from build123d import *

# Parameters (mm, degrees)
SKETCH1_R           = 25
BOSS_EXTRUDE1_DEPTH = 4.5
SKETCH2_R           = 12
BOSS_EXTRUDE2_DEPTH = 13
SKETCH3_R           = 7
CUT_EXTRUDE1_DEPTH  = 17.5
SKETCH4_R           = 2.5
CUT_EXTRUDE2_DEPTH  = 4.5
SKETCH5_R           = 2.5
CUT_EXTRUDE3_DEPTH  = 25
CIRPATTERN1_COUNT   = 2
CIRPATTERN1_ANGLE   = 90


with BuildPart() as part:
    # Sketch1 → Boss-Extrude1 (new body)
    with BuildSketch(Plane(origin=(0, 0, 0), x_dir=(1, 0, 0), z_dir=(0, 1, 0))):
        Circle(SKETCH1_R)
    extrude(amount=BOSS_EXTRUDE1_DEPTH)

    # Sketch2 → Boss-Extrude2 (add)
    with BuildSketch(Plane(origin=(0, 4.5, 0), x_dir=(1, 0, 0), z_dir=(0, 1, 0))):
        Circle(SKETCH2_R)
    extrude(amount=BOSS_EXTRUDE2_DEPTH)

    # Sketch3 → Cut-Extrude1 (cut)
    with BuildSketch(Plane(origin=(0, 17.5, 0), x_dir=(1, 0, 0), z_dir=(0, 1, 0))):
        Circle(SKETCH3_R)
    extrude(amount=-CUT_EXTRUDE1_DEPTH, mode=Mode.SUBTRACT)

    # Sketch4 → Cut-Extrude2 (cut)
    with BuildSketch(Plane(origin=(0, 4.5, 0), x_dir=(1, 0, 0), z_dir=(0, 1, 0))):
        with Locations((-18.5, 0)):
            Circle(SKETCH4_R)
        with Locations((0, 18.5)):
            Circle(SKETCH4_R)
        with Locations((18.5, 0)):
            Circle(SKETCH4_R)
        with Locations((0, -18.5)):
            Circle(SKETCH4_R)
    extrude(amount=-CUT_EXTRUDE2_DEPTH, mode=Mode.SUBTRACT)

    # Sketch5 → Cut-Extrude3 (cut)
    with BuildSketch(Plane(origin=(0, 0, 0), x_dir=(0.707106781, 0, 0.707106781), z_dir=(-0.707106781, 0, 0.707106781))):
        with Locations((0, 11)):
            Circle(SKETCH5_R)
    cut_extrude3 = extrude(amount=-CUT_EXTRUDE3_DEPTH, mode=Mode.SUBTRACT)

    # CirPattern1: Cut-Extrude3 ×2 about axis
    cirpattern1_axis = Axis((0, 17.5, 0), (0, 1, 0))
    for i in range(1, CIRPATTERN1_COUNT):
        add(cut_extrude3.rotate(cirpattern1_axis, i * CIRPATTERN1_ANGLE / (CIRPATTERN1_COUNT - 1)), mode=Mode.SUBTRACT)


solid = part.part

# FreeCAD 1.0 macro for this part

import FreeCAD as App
import Part
import Sketcher

V = App.Vector
Q = App.Units.Quantity

doc = App.newDocument("Part")
body = doc.addObject("PartDesign::Body", "Body")

# Sketch on XZ plane
sketch1 = doc.addObject("Sketcher::SketchObject", "Sketch")
body.addObject(sketch1)
sketch1.AttachmentSupport = (doc.XZ_Plane, [""])
sketch1.MapMode = "FlatFace"
sketch1.addGeometry(Part.Circle(V(0, 0, 0), V(0, 0, 1), 25), False)
sketch1.addConstraint([
    Sketcher.Constraint("Coincident", 0, 3, -1, 1),
    Sketcher.Constraint("Diameter", 0, Q("50 mm")),
])
pad1 = doc.addObject("PartDesign::Pad", "Pad")
body.addObject(pad1)
pad1.Profile = sketch1
pad1.Length = 4.5
pad1.Reversed = True

# Sketch on XZ plane
sketch2 = doc.addObject("Sketcher::SketchObject", "Sketch001")
body.addObject(sketch2)
sketch2.AttachmentSupport = (doc.XZ_Plane, [""])
sketch2.MapMode = "FlatFace"
sketch2.AttachmentOffset = App.Placement(V(0, 0, -4.5), App.Rotation())
sketch2.addGeometry(Part.Circle(V(0, 0, 0), V(0, 0, 1), 12), False)
sketch2.addConstraint([
    Sketcher.Constraint("Coincident", 0, 3, -1, 1),
    Sketcher.Constraint("Diameter", 0, Q("24 mm")),
])
pad2 = doc.addObject("PartDesign::Pad", "Pad001")
body.addObject(pad2)
pad2.Profile = sketch2
pad2.Length = 13
pad2.Reversed = True

# Sketch on XZ plane
sketch3 = doc.addObject("Sketcher::SketchObject", "Sketch002")
body.addObject(sketch3)
sketch3.AttachmentSupport = (doc.XZ_Plane, [""])
sketch3.MapMode = "FlatFace"
sketch3.AttachmentOffset = App.Placement(V(0, 0, -17.5), App.Rotation())
sketch3.addGeometry(Part.Circle(V(0, 0, 0), V(0, 0, 1), 7), False)
sketch3.addConstraint([
    Sketcher.Constraint("Coincident", 0, 3, -1, 1),
    Sketcher.Constraint("Diameter", 0, Q("14 mm")),
])
pocket1 = doc.addObject("PartDesign::Pocket", "Pocket")
body.addObject(pocket1)
pocket1.Profile = sketch3
pocket1.Length = 17.5
pocket1.Reversed = True

# Sketch on XZ plane
sketch4 = doc.addObject("Sketcher::SketchObject", "Sketch003")
body.addObject(sketch4)
sketch4.AttachmentSupport = (doc.XZ_Plane, [""])
sketch4.MapMode = "FlatFace"
sketch4.AttachmentOffset = App.Placement(V(0, 0, -4.5), App.Rotation())
sketch4.addGeometry([
    Part.Circle(V(-18.5, 0, 0), V(0, 0, 1), 2.5),
    Part.Circle(V(0, -18.5, 0), V(0, 0, 1), 2.5),
    Part.Circle(V(18.5, 0, 0), V(0, 0, 1), 2.5),
    Part.Circle(V(0, 18.5, 0), V(0, 0, 1), 2.5),
], False)
sketch4.addConstraint([
    Sketcher.Constraint("Equal", 0, 1),
    Sketcher.Constraint("Equal", 1, 2),
    Sketcher.Constraint("Equal", 2, 3),
    Sketcher.Constraint("Symmetric", 0, 3, 2, 3, -1, 1),
    Sketcher.Constraint("Symmetric", 1, 3, 3, 3, -1, 1),
    Sketcher.Constraint("PointOnObject", 0, 3, -1),
    Sketcher.Constraint("PointOnObject", 1, 3, -2),
    Sketcher.Constraint("Diameter", 0, Q("5 mm")),
    Sketcher.Constraint("DistanceX", 0, 3, 2, 3, Q("37 mm")),
    Sketcher.Constraint("DistanceY", 1, 3, 3, 3, Q("37 mm")),
])
pocket2 = doc.addObject("PartDesign::Pocket", "Pocket001")
body.addObject(pocket2)
pocket2.Profile = sketch4
pocket2.Length = 4.5
pocket2.Reversed = True

# Sketch on an angled plane
sketch5 = doc.addObject("Sketcher::SketchObject", "Sketch004")
body.addObject(sketch5)
sketch5.Placement = App.Placement(V(0, 0, 0), App.Rotation(V(0.707106781, 0, 0.707106781), V(0, 0.999999999, 0), V(-0.707106781, 0, 0.707106781), "ZXY"))
sketch5.addGeometry(Part.Circle(V(0, 11, 0), V(0, 0, 1), 2.5), False)
sketch5.addConstraint([
    Sketcher.Constraint("PointOnObject", 0, 3, -2),
    Sketcher.Constraint("Diameter", 0, Q("5 mm")),
    Sketcher.Constraint("DistanceY", -1, 1, 0, 3, Q("11 mm")),
])
pocket3 = doc.addObject("PartDesign::Pocket", "Pocket002")
body.addObject(pocket3)
pocket3.Profile = sketch5
pocket3.Length = 25
doc.recompute()

polarpattern = doc.addObject("PartDesign::PolarPattern", "PolarPattern")
body.addObject(polarpattern)
polarpattern.Originals = [pocket3]
polarpattern.Axis = (doc.Y_Axis, [""])
polarpattern.Angle = 90
polarpattern.Occurrences = 2
body.Tip = polarpattern

doc.recompute()
